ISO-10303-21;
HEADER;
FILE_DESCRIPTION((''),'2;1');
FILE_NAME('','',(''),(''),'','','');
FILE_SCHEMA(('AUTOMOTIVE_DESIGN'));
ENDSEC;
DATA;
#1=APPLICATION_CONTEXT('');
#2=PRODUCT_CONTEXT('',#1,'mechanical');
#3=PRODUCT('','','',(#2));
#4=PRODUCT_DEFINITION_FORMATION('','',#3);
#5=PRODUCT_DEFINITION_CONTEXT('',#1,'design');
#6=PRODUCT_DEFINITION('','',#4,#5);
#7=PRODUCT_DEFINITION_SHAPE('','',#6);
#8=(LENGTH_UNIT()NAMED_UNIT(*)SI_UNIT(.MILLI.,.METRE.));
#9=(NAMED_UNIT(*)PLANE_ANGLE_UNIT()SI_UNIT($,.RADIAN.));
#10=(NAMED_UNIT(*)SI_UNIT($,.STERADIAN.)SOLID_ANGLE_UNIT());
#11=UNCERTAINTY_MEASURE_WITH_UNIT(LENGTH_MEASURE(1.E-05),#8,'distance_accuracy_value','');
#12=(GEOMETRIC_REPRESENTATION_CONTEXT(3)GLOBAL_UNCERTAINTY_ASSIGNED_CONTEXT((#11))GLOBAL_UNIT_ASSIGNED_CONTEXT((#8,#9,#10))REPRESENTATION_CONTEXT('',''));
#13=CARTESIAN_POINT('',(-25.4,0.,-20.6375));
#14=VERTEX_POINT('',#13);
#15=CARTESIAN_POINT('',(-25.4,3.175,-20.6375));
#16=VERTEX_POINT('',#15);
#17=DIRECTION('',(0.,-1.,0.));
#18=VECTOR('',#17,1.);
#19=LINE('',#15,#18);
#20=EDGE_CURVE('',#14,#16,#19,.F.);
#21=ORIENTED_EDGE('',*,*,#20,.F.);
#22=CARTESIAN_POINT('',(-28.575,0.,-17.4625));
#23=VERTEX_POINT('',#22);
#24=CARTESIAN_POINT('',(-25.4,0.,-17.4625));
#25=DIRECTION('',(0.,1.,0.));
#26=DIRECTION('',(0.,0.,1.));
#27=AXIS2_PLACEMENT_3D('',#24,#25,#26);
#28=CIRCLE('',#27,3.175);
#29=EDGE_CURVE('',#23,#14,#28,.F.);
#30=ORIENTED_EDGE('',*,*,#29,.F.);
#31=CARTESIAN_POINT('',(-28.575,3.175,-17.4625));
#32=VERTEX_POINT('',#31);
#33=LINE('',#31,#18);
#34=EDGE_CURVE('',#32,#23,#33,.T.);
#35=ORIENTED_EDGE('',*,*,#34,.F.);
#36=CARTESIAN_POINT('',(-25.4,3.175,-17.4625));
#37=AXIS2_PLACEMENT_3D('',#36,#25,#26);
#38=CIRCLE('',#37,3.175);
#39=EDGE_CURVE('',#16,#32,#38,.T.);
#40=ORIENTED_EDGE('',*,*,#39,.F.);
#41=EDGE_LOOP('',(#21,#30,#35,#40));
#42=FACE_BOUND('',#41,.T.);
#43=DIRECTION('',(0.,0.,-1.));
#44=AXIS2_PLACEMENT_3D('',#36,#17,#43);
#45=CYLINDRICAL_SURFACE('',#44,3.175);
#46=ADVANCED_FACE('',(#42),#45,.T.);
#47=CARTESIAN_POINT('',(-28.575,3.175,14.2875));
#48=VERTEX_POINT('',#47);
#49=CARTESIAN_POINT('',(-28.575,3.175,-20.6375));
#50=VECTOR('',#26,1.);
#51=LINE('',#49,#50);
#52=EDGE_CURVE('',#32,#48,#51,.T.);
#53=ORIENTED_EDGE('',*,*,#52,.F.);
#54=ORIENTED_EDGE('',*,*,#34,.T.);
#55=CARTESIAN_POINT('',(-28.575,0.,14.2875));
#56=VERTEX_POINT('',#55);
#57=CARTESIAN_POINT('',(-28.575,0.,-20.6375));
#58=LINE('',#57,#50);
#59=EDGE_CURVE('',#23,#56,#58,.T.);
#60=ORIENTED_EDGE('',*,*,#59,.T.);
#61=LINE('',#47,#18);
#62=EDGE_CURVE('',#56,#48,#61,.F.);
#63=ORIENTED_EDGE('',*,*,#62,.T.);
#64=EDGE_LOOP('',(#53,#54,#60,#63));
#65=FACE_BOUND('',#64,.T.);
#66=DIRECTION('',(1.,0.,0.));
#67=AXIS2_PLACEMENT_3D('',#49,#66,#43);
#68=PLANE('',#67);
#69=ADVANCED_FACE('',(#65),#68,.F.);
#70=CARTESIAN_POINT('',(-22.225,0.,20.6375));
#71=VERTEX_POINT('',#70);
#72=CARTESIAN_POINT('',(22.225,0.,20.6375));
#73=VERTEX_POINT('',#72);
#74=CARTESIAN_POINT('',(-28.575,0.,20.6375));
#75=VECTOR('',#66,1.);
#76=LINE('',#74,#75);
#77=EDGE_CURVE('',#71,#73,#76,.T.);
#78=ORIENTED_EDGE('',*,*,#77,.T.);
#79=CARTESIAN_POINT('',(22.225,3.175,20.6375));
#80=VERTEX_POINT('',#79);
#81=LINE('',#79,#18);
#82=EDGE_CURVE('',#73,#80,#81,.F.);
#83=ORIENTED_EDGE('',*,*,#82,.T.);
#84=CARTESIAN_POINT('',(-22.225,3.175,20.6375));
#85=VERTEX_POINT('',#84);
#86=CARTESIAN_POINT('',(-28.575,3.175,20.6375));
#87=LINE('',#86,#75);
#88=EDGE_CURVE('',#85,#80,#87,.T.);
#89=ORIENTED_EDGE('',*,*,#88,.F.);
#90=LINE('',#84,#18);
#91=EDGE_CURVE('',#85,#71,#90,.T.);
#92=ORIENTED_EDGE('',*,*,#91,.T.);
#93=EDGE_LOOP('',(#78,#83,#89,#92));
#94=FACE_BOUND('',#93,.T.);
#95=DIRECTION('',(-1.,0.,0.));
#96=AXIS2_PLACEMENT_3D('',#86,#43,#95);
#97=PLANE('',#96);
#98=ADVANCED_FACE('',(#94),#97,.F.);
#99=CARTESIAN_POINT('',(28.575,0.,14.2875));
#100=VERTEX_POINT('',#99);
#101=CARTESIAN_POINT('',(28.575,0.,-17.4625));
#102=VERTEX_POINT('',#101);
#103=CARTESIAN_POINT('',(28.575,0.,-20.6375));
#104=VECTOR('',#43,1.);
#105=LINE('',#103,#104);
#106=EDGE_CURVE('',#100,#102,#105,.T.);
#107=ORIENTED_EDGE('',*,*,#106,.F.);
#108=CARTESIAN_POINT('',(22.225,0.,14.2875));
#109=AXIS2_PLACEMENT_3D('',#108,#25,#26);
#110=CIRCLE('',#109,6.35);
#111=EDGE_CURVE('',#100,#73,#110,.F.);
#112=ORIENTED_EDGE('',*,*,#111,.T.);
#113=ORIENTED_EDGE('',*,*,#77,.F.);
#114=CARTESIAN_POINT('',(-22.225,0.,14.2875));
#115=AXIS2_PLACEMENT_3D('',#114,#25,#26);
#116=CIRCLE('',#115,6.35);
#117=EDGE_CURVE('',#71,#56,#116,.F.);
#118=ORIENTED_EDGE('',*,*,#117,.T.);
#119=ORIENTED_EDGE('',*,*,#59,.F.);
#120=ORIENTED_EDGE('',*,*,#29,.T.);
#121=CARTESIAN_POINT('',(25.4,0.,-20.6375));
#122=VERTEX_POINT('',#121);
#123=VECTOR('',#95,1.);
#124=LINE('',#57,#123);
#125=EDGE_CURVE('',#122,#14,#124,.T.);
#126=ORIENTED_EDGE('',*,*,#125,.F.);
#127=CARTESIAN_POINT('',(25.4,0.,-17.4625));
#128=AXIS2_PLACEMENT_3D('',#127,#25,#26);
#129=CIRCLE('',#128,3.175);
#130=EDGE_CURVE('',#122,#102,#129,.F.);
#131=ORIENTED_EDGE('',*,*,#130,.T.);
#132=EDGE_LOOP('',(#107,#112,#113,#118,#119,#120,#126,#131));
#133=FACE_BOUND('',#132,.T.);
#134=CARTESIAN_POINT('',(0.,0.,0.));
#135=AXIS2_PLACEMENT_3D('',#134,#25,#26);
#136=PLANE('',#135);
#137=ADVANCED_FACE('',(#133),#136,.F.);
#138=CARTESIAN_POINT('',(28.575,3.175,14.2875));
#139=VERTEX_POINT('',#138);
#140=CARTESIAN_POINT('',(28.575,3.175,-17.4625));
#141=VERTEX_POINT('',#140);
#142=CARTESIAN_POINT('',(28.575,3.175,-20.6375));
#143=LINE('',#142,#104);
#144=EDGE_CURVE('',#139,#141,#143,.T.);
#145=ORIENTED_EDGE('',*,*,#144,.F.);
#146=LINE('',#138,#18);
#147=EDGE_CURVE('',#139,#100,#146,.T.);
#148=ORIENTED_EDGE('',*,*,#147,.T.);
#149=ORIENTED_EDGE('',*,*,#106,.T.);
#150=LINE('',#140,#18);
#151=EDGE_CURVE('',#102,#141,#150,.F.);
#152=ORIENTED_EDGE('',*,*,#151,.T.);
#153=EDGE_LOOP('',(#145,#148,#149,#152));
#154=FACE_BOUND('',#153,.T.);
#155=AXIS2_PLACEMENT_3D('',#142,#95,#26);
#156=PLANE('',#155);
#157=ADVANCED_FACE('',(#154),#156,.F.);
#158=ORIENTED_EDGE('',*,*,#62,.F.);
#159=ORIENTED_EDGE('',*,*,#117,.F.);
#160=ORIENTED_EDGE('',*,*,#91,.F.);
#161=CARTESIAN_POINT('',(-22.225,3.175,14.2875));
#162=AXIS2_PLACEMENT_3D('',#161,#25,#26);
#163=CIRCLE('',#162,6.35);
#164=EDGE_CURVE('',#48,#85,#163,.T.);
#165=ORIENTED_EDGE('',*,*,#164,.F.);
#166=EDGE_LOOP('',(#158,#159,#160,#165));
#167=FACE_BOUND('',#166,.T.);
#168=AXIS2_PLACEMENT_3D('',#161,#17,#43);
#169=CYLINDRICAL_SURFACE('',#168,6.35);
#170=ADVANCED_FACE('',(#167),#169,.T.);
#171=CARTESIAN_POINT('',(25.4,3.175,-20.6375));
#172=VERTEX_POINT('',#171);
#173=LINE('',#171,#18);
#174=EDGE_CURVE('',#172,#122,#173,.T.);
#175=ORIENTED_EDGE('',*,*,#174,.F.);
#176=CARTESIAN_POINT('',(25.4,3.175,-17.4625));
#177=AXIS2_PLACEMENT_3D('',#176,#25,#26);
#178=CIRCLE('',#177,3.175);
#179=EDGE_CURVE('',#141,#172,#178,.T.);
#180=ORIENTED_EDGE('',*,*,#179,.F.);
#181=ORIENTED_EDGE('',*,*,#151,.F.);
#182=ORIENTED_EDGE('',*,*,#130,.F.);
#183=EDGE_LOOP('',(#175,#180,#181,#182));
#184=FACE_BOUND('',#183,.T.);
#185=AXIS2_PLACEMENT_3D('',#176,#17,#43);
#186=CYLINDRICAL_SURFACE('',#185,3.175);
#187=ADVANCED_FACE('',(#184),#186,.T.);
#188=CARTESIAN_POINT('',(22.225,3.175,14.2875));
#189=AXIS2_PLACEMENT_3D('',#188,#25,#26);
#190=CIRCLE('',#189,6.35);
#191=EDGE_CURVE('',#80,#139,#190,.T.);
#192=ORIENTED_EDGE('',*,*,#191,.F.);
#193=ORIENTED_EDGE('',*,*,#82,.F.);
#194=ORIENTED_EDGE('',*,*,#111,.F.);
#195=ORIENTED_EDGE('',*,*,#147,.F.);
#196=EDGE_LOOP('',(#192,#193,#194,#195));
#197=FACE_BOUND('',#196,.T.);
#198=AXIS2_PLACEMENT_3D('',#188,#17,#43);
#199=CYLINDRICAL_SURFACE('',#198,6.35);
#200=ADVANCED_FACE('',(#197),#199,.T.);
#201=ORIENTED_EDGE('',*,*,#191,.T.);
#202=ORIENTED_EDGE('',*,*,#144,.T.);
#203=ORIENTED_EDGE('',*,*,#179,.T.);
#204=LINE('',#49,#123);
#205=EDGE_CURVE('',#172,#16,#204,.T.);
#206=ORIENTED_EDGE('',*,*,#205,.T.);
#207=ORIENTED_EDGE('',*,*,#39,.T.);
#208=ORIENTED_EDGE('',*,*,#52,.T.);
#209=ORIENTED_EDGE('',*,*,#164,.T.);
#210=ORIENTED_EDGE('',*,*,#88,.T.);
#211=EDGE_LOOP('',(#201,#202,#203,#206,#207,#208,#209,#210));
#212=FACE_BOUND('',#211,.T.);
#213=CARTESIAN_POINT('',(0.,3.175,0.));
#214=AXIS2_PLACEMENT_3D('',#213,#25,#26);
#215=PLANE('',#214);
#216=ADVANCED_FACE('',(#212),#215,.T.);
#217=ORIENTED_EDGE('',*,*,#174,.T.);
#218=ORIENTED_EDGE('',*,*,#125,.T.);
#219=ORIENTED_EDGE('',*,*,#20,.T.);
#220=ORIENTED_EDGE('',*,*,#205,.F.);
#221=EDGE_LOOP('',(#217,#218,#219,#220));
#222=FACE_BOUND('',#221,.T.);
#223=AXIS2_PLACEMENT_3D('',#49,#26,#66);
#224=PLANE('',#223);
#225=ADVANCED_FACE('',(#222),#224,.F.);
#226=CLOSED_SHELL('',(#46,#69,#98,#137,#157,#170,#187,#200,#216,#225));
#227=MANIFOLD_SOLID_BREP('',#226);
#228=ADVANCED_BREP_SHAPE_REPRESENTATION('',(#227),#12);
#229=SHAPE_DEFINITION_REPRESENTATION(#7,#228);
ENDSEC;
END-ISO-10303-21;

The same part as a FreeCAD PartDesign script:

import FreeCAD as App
import Part
import Sketcher

V = App.Vector
Q = App.Units.Quantity


def edges_at(feature, points):
    """Names of the edges that pass closest to the given points."""
    edges = feature.Shape.Edges
    near = lambda p: min(range(len(edges)), key=lambda i: edges[i].distToShape(Part.Vertex(*p))[0])
    return sorted({f"Edge{near(p) + 1}" for p in points})

doc = App.newDocument("Part")
body = doc.addObject("PartDesign::Body", "Body")

sketch1 = body.newObject("Sketcher::SketchObject", "Sketch")
sketch1.AttachmentSupport = (doc.getObject("XZ_Plane"), [""])
sketch1.MapMode = "FlatFace"
sketch1.addGeometry([
    Part.LineSegment(V(-29, -21, 0), V(-29, 21, 0)),
    Part.LineSegment(V(-29, 21, 0), V(29, 21, 0)),
    Part.LineSegment(V(29, 21, 0), V(29, -21, 0)),
    Part.LineSegment(V(29, -21, 0), V(-29, -21, 0)),
], False)
sketch1.addConstraint([
    Sketcher.Constraint("Coincident", 0, 2, 1, 1),
    Sketcher.Constraint("Coincident", 1, 2, 2, 1),
    Sketcher.Constraint("Coincident", 2, 2, 3, 1),
    Sketcher.Constraint("Coincident", 3, 2, 0, 1),
    Sketcher.Constraint("Vertical", 0),
    Sketcher.Constraint("Horizontal", 1),
    Sketcher.Constraint("Vertical", 2),
    Sketcher.Constraint("Horizontal", 3),
    Sketcher.Constraint("Symmetric", 0, 2, 2, 2, -1, 1),
    Sketcher.Constraint("DistanceX", 1, 1, 1, 2, Q("2.25 in")),
    Sketcher.Constraint("DistanceY", 0, 1, 0, 2, Q("1.625 in")),
])
pad1 = body.newObject("PartDesign::Pad", "Pad")
pad1.Profile = sketch1
pad1.Length = Q("0.125 in")
pad1.Reversed = True
doc.recompute()

fillet = body.newObject("PartDesign::Fillet", "Fillet")
fillet.Base = (pad1, edges_at(pad1, [(28.575, 1.587, 20.637), (-28.575, 1.587, 20.637)]))
fillet.Radius = Q("0.25 in")
doc.recompute()

fillet2 = body.newObject("PartDesign::Fillet", "Fillet001")
fillet2.Base = (fillet, edges_at(fillet, [(-28.575, 1.587, -20.637), (28.575, 1.587, -20.637)]))
fillet2.Radius = Q("0.125 in")

doc.recompute()
